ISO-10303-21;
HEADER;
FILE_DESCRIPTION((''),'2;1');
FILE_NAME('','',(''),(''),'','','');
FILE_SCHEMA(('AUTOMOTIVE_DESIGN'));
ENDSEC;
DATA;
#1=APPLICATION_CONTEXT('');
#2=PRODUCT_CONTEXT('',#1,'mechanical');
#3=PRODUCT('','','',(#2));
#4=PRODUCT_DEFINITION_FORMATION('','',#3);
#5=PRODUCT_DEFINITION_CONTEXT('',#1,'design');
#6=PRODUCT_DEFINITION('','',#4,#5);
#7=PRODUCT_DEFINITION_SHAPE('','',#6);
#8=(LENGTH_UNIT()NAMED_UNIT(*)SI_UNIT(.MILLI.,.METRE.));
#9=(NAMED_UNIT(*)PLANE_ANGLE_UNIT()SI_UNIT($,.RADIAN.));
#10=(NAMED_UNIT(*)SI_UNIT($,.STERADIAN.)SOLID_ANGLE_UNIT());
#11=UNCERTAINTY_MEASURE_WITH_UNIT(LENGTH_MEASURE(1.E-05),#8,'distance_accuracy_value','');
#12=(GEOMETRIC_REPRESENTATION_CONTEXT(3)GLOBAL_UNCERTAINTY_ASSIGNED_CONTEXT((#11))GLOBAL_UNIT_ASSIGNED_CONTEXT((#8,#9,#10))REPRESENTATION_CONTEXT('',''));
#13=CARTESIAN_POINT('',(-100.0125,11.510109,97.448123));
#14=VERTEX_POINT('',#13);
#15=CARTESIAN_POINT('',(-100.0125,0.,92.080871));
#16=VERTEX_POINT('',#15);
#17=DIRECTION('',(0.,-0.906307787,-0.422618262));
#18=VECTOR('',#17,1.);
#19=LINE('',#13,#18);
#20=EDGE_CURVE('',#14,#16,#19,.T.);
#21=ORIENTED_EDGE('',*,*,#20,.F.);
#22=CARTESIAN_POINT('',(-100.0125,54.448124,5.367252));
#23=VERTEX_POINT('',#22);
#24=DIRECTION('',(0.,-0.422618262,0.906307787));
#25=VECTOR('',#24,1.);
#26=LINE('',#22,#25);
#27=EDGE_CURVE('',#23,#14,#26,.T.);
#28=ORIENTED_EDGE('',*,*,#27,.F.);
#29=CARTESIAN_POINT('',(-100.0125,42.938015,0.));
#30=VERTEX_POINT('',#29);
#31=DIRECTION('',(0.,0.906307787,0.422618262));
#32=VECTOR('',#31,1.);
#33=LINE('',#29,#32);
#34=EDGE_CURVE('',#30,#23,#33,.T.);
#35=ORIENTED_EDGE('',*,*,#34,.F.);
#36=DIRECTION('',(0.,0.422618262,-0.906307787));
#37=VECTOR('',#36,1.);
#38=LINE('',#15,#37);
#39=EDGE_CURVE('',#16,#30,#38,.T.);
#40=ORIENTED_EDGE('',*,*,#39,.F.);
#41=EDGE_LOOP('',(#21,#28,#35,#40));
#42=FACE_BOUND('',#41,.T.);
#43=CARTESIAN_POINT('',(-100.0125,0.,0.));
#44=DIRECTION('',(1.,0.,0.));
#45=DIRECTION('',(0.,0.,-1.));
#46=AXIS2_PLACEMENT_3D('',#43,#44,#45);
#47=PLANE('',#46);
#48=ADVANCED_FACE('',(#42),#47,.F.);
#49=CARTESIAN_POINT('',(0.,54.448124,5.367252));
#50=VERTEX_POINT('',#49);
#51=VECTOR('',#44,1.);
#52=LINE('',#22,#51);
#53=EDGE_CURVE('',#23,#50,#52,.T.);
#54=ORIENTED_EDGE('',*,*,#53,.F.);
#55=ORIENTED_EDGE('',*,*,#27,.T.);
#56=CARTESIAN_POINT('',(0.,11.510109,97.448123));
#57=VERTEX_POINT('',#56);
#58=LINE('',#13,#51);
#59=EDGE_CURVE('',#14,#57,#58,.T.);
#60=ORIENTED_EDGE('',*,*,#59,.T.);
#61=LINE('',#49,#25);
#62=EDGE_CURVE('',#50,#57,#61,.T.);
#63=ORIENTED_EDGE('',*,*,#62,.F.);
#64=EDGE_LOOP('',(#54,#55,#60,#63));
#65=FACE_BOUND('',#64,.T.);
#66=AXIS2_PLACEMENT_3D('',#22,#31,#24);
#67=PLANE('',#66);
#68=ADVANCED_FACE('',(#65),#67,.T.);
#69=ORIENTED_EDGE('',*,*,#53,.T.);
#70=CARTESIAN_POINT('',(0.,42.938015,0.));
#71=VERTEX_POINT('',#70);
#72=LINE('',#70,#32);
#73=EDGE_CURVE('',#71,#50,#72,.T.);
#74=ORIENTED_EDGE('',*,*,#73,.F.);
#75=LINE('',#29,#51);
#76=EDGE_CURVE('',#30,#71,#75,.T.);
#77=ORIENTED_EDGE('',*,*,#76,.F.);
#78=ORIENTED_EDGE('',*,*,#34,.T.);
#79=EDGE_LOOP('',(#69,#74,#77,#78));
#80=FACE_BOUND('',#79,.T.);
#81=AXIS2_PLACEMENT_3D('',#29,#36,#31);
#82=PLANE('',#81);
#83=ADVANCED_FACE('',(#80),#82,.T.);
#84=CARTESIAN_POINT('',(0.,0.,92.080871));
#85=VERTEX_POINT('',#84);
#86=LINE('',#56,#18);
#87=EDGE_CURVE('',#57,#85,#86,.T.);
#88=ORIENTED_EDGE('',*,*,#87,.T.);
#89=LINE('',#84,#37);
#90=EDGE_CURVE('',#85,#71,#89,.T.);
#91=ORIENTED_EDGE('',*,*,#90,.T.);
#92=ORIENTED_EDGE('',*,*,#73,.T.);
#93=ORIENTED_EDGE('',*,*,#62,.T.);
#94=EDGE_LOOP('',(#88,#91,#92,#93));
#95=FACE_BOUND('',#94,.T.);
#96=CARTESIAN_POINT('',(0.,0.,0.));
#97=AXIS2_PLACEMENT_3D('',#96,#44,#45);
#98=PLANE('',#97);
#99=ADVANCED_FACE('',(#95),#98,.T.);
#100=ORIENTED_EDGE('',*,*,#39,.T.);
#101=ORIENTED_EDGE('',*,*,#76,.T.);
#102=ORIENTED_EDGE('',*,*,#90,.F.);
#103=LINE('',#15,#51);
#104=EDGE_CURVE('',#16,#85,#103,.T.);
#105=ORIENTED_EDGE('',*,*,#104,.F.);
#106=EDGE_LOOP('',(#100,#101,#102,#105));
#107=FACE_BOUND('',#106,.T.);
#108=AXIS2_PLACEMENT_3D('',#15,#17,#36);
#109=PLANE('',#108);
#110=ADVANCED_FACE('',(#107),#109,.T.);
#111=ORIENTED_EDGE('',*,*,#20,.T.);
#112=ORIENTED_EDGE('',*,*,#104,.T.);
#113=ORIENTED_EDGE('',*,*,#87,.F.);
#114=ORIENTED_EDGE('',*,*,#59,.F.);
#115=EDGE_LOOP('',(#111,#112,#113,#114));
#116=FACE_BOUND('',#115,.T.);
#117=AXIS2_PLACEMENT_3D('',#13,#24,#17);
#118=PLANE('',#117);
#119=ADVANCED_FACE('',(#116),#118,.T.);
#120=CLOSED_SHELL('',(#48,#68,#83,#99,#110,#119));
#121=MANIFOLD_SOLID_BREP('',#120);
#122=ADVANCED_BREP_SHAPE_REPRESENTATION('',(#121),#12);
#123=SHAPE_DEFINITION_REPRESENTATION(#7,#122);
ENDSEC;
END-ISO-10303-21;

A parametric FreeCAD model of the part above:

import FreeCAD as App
import Part
import Sketcher
Q = App.Units.Quantity

doc = App.newDocument("Part")
body = doc.addObject("PartDesign::Body", "Body")

# Sketch on YZ plane
sketch1 = doc.addObject("Sketcher::SketchObject", "Sketch")
body.addObject(sketch1)
sketch1.AttachmentSupport = (doc.YZ_Plane, [""])
sketch1.MapMode = "FlatFace"
sketch1.addGeometry([
    Part.LineSegment(App.Vector(0, 92.080871, 0), App.Vector(42.938015, 0, 0)),
    Part.LineSegment(App.Vector(42.938015, 0, 0), App.Vector(54.448124, 5.367252, 0)),
    Part.LineSegment(App.Vector(54.448124, 5.367252, 0), App.Vector(11.510109, 97.448123, 0)),
    Part.LineSegment(App.Vector(11.510109, 97.448123, 0), App.Vector(0, 92.080871, 0)),
], False)
sketch1.addConstraint([
    Sketcher.Constraint("Coincident", 0, 2, 1, 1),
    Sketcher.Constraint("Coincident", 1, 2, 2, 1),
    Sketcher.Constraint("Coincident", 2, 2, 3, 1),
    Sketcher.Constraint("Coincident", 3, 2, 0, 1),
    Sketcher.Constraint("PointOnObject", 0, 2, -1),
    Sketcher.Constraint("PointOnObject", 3, 2, -2),
    Sketcher.Constraint("Perpendicular", 0, 1),
    Sketcher.Constraint("Perpendicular", 1, 2),
    Sketcher.Constraint("Perpendicular", 2, 3),
    Sketcher.Constraint("Distance", 0, Q("4 in")),
    Sketcher.Constraint("Angle", 0, Q("-65 deg")),
    Sketcher.Constraint("Distance", 1, Q("0.5 in")),
])
pad1 = doc.addObject("PartDesign::Pad", "Pad")
body.addObject(pad1)
pad1.Profile = sketch1
pad1.Length = Q("3.9375 in")
pad1.Reversed = True

doc.recompute()
